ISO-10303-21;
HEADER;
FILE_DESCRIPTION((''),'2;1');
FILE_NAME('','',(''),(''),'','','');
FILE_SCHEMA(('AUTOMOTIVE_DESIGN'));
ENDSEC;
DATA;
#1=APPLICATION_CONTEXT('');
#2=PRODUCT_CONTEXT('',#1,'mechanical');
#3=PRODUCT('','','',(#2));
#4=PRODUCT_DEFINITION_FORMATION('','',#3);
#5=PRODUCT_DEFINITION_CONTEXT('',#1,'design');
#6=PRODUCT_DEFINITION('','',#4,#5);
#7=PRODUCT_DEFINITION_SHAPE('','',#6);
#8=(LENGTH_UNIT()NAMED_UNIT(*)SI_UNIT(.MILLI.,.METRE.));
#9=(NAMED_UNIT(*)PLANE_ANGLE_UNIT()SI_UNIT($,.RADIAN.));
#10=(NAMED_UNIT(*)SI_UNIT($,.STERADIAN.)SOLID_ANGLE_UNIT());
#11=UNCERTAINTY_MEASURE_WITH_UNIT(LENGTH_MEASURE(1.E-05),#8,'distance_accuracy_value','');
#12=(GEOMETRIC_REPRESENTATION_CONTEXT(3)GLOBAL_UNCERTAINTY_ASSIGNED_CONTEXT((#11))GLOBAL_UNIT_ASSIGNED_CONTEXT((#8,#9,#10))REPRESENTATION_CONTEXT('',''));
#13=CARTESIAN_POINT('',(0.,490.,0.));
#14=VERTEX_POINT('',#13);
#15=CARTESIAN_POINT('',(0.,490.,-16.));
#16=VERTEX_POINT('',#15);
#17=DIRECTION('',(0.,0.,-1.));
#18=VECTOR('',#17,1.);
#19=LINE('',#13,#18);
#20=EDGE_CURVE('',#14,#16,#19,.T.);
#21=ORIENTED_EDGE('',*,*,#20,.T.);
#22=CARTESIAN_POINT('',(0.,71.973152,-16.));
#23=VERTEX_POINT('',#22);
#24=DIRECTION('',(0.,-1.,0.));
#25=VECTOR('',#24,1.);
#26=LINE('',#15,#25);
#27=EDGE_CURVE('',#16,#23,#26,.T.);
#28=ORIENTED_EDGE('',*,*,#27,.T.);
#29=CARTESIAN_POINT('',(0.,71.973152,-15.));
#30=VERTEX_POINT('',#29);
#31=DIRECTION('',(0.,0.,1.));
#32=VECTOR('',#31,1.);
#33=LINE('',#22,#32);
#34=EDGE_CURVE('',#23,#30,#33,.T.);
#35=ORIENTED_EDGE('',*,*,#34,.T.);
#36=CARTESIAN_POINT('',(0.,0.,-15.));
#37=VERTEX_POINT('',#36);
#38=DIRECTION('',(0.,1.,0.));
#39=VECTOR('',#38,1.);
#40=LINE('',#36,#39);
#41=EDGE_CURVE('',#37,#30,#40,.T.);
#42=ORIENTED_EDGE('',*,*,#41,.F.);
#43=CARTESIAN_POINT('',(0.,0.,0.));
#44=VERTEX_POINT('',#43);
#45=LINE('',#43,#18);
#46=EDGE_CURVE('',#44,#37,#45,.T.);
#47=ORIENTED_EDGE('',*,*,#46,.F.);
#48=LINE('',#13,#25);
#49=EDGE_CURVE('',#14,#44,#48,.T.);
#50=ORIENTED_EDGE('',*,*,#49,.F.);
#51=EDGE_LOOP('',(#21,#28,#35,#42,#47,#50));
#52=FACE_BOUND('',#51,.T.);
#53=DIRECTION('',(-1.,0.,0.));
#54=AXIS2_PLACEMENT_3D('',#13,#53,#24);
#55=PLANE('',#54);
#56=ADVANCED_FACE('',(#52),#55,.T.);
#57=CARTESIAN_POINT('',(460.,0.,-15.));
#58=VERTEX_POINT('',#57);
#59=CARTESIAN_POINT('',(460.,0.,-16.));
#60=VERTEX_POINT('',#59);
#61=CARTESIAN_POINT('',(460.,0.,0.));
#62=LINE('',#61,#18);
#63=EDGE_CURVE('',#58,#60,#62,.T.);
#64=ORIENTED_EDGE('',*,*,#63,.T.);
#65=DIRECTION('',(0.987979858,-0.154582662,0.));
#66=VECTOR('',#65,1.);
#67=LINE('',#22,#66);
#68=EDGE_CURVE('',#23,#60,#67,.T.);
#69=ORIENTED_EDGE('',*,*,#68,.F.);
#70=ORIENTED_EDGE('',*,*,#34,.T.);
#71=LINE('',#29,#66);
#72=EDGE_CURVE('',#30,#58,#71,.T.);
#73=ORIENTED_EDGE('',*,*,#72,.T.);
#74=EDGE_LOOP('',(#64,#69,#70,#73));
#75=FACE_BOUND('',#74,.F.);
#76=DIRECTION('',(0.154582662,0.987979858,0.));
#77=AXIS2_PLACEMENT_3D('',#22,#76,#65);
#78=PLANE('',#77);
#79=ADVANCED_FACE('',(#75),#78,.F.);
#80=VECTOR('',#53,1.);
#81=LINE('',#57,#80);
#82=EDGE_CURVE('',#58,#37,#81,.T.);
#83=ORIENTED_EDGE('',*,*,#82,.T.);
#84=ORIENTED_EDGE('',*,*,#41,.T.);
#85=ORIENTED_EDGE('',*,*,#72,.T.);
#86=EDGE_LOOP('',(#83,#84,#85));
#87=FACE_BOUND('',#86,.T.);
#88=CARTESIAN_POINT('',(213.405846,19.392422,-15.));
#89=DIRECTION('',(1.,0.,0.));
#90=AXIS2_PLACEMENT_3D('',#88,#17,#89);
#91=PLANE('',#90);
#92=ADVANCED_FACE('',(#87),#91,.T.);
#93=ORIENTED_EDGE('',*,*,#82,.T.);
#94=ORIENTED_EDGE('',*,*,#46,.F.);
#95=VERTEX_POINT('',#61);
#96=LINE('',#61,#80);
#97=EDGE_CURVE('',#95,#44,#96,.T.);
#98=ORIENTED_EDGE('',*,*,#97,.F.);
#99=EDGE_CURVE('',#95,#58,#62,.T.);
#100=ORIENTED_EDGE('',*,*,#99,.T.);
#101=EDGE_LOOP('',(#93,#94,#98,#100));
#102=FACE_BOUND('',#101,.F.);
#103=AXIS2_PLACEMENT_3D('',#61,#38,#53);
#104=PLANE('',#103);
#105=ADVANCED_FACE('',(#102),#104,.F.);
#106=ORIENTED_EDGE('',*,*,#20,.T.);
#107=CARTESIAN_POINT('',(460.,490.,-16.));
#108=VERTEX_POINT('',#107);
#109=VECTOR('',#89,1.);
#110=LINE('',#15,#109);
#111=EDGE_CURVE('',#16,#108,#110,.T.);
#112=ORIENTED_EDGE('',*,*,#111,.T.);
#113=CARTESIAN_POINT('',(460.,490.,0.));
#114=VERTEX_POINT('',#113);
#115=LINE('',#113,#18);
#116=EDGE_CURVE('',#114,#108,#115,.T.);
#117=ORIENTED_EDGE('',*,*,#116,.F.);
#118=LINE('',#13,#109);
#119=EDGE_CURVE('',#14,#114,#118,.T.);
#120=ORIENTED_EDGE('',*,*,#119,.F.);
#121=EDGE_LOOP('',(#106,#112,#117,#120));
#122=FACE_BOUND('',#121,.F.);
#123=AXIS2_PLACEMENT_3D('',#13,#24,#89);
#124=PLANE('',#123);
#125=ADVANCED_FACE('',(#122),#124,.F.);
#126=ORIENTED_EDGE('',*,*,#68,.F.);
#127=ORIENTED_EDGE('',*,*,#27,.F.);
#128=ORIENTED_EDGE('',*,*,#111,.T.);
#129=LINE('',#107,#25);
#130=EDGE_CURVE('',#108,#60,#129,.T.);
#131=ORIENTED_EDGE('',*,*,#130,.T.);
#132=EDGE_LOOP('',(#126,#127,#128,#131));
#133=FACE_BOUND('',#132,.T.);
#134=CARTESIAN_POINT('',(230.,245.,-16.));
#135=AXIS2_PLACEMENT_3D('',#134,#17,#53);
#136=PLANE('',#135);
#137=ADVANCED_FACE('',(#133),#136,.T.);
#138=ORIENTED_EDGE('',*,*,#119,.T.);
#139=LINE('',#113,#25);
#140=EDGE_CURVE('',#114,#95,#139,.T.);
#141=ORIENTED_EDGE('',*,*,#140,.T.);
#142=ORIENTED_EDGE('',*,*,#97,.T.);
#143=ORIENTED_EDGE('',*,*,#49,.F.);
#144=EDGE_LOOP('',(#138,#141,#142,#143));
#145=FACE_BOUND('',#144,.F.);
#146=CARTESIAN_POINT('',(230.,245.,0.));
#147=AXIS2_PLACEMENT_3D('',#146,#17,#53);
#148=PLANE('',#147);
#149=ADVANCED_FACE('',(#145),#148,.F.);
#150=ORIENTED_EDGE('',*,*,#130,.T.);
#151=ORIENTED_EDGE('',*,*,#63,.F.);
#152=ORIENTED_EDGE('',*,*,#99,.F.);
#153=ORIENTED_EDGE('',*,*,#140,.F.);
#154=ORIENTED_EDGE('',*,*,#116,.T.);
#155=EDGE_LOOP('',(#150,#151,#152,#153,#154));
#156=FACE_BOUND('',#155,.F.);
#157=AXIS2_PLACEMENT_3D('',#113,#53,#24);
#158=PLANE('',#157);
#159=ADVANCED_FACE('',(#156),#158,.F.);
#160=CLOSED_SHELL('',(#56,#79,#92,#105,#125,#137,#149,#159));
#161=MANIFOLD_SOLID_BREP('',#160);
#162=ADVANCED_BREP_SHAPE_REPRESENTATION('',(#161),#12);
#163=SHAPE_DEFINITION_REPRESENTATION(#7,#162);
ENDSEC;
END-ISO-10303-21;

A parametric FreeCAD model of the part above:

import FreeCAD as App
import Part
import Sketcher

V = App.Vector
Q = App.Units.Quantity

doc = App.newDocument("Part")
params = doc.addObject("Spreadsheet::Sheet", "Params")
for row, (alias, value) in enumerate([
    ("sketch1_width", "460 mm"),
    ("sketch1_height", "490 mm"),
    ("pad1_length", "16 mm"),
    ("sketch2_width", "460 mm"),
    ("pocket1_length", "1 mm"),
], start=1):
    params.set(f"A{row}", alias)
    params.set(f"B{row}", "=" + value)
    params.setAlias(f"B{row}", alias)

body = doc.addObject("PartDesign::Body", "Body")

sketch1 = body.newObject("Sketcher::SketchObject", "Sketch")
sketch1.AttachmentSupport = (doc.getObject("XY_Plane"), [""])
sketch1.MapMode = "FlatFace"
sketch1.addGeometry(Part.LineSegment(V(0, 490, 0), V(0, 0, 0)), False)
sketch1.addGeometry(Part.LineSegment(V(0, 0, 0), V(460, 0, 0)), False)
sketch1.addGeometry(Part.LineSegment(V(460, 0, 0), V(460, 490, 0)), False)
sketch1.addGeometry(Part.LineSegment(V(460, 490, 0), V(0, 490, 0)), False)
sketch1.addConstraint(Sketcher.Constraint("Coincident", 0, 2, 1, 1))
sketch1.addConstraint(Sketcher.Constraint("Coincident", 1, 2, 2, 1))
sketch1.addConstraint(Sketcher.Constraint("Coincident", 2, 2, 3, 1))
sketch1.addConstraint(Sketcher.Constraint("Coincident", 3, 2, 0, 1))
sketch1.addConstraint(Sketcher.Constraint("Vertical", 0))
sketch1.addConstraint(Sketcher.Constraint("Horizontal", 1))
sketch1.addConstraint(Sketcher.Constraint("Vertical", 2))
sketch1.addConstraint(Sketcher.Constraint("Horizontal", 3))
sketch1.addConstraint(Sketcher.Constraint("Coincident", 0, 2, -1, 1))
sketch1.addConstraint(Sketcher.Constraint("DistanceX", 1, 1, 1, 2, Q("460 mm")))
sketch1.addConstraint(Sketcher.Constraint("DistanceY", 0, 2, 0, 1, Q("490 mm")))
sketch1.setExpression("Constraints[9]", "Params.sketch1_width")
sketch1.setExpression("Constraints[10]", "Params.sketch1_height")
pad1 = body.newObject("PartDesign::Pad", "Pad")
pad1.Profile = sketch1
pad1.setExpression("Length", "Params.pad1_length")
pad1.Reversed = True

sketch2 = body.newObject("Sketcher::SketchObject", "Sketch001")
sketch2.AttachmentSupport = (doc.getObject("XY_Plane"), [""])
sketch2.MapMode = "FlatFace"
sketch2.AttachmentOffset = App.Placement(V(0, 0, -16), App.Rotation())
sketch2.addGeometry(Part.LineSegment(V(0, 0, 0), V(0, 72, 0)), False)
sketch2.addGeometry(Part.LineSegment(V(0, 72, 0), V(460, 0, 0)), False)
sketch2.addGeometry(Part.LineSegment(V(460, 0, 0), V(0, 0, 0)), False)
sketch2.addConstraint(Sketcher.Constraint("Coincident", 0, 2, 1, 1))
sketch2.addConstraint(Sketcher.Constraint("Coincident", 1, 2, 2, 1))
sketch2.addConstraint(Sketcher.Constraint("Coincident", 2, 2, 0, 1))
sketch2.addConstraint(Sketcher.Constraint("Vertical", 0))
sketch2.addConstraint(Sketcher.Constraint("Horizontal", 2))
sketch2.addConstraint(Sketcher.Constraint("Coincident", 2, 2, -1, 1))
sketch2.addConstraint(Sketcher.Constraint("DistanceX", 2, 2, 2, 1, Q("460 mm")))
sketch2.addConstraint(Sketcher.Constraint("DistanceY", 0, 1, 0, 2, Q("71.973152 mm")))
sketch2.setExpression("Constraints[6]", "Params.sketch2_width")
pocket1 = body.newObject("PartDesign::Pocket", "Pocket")
pocket1.Profile = sketch2
pocket1.setExpression("Length", "Params.pocket1_length")
pocket1.Reversed = True

doc.recompute()
